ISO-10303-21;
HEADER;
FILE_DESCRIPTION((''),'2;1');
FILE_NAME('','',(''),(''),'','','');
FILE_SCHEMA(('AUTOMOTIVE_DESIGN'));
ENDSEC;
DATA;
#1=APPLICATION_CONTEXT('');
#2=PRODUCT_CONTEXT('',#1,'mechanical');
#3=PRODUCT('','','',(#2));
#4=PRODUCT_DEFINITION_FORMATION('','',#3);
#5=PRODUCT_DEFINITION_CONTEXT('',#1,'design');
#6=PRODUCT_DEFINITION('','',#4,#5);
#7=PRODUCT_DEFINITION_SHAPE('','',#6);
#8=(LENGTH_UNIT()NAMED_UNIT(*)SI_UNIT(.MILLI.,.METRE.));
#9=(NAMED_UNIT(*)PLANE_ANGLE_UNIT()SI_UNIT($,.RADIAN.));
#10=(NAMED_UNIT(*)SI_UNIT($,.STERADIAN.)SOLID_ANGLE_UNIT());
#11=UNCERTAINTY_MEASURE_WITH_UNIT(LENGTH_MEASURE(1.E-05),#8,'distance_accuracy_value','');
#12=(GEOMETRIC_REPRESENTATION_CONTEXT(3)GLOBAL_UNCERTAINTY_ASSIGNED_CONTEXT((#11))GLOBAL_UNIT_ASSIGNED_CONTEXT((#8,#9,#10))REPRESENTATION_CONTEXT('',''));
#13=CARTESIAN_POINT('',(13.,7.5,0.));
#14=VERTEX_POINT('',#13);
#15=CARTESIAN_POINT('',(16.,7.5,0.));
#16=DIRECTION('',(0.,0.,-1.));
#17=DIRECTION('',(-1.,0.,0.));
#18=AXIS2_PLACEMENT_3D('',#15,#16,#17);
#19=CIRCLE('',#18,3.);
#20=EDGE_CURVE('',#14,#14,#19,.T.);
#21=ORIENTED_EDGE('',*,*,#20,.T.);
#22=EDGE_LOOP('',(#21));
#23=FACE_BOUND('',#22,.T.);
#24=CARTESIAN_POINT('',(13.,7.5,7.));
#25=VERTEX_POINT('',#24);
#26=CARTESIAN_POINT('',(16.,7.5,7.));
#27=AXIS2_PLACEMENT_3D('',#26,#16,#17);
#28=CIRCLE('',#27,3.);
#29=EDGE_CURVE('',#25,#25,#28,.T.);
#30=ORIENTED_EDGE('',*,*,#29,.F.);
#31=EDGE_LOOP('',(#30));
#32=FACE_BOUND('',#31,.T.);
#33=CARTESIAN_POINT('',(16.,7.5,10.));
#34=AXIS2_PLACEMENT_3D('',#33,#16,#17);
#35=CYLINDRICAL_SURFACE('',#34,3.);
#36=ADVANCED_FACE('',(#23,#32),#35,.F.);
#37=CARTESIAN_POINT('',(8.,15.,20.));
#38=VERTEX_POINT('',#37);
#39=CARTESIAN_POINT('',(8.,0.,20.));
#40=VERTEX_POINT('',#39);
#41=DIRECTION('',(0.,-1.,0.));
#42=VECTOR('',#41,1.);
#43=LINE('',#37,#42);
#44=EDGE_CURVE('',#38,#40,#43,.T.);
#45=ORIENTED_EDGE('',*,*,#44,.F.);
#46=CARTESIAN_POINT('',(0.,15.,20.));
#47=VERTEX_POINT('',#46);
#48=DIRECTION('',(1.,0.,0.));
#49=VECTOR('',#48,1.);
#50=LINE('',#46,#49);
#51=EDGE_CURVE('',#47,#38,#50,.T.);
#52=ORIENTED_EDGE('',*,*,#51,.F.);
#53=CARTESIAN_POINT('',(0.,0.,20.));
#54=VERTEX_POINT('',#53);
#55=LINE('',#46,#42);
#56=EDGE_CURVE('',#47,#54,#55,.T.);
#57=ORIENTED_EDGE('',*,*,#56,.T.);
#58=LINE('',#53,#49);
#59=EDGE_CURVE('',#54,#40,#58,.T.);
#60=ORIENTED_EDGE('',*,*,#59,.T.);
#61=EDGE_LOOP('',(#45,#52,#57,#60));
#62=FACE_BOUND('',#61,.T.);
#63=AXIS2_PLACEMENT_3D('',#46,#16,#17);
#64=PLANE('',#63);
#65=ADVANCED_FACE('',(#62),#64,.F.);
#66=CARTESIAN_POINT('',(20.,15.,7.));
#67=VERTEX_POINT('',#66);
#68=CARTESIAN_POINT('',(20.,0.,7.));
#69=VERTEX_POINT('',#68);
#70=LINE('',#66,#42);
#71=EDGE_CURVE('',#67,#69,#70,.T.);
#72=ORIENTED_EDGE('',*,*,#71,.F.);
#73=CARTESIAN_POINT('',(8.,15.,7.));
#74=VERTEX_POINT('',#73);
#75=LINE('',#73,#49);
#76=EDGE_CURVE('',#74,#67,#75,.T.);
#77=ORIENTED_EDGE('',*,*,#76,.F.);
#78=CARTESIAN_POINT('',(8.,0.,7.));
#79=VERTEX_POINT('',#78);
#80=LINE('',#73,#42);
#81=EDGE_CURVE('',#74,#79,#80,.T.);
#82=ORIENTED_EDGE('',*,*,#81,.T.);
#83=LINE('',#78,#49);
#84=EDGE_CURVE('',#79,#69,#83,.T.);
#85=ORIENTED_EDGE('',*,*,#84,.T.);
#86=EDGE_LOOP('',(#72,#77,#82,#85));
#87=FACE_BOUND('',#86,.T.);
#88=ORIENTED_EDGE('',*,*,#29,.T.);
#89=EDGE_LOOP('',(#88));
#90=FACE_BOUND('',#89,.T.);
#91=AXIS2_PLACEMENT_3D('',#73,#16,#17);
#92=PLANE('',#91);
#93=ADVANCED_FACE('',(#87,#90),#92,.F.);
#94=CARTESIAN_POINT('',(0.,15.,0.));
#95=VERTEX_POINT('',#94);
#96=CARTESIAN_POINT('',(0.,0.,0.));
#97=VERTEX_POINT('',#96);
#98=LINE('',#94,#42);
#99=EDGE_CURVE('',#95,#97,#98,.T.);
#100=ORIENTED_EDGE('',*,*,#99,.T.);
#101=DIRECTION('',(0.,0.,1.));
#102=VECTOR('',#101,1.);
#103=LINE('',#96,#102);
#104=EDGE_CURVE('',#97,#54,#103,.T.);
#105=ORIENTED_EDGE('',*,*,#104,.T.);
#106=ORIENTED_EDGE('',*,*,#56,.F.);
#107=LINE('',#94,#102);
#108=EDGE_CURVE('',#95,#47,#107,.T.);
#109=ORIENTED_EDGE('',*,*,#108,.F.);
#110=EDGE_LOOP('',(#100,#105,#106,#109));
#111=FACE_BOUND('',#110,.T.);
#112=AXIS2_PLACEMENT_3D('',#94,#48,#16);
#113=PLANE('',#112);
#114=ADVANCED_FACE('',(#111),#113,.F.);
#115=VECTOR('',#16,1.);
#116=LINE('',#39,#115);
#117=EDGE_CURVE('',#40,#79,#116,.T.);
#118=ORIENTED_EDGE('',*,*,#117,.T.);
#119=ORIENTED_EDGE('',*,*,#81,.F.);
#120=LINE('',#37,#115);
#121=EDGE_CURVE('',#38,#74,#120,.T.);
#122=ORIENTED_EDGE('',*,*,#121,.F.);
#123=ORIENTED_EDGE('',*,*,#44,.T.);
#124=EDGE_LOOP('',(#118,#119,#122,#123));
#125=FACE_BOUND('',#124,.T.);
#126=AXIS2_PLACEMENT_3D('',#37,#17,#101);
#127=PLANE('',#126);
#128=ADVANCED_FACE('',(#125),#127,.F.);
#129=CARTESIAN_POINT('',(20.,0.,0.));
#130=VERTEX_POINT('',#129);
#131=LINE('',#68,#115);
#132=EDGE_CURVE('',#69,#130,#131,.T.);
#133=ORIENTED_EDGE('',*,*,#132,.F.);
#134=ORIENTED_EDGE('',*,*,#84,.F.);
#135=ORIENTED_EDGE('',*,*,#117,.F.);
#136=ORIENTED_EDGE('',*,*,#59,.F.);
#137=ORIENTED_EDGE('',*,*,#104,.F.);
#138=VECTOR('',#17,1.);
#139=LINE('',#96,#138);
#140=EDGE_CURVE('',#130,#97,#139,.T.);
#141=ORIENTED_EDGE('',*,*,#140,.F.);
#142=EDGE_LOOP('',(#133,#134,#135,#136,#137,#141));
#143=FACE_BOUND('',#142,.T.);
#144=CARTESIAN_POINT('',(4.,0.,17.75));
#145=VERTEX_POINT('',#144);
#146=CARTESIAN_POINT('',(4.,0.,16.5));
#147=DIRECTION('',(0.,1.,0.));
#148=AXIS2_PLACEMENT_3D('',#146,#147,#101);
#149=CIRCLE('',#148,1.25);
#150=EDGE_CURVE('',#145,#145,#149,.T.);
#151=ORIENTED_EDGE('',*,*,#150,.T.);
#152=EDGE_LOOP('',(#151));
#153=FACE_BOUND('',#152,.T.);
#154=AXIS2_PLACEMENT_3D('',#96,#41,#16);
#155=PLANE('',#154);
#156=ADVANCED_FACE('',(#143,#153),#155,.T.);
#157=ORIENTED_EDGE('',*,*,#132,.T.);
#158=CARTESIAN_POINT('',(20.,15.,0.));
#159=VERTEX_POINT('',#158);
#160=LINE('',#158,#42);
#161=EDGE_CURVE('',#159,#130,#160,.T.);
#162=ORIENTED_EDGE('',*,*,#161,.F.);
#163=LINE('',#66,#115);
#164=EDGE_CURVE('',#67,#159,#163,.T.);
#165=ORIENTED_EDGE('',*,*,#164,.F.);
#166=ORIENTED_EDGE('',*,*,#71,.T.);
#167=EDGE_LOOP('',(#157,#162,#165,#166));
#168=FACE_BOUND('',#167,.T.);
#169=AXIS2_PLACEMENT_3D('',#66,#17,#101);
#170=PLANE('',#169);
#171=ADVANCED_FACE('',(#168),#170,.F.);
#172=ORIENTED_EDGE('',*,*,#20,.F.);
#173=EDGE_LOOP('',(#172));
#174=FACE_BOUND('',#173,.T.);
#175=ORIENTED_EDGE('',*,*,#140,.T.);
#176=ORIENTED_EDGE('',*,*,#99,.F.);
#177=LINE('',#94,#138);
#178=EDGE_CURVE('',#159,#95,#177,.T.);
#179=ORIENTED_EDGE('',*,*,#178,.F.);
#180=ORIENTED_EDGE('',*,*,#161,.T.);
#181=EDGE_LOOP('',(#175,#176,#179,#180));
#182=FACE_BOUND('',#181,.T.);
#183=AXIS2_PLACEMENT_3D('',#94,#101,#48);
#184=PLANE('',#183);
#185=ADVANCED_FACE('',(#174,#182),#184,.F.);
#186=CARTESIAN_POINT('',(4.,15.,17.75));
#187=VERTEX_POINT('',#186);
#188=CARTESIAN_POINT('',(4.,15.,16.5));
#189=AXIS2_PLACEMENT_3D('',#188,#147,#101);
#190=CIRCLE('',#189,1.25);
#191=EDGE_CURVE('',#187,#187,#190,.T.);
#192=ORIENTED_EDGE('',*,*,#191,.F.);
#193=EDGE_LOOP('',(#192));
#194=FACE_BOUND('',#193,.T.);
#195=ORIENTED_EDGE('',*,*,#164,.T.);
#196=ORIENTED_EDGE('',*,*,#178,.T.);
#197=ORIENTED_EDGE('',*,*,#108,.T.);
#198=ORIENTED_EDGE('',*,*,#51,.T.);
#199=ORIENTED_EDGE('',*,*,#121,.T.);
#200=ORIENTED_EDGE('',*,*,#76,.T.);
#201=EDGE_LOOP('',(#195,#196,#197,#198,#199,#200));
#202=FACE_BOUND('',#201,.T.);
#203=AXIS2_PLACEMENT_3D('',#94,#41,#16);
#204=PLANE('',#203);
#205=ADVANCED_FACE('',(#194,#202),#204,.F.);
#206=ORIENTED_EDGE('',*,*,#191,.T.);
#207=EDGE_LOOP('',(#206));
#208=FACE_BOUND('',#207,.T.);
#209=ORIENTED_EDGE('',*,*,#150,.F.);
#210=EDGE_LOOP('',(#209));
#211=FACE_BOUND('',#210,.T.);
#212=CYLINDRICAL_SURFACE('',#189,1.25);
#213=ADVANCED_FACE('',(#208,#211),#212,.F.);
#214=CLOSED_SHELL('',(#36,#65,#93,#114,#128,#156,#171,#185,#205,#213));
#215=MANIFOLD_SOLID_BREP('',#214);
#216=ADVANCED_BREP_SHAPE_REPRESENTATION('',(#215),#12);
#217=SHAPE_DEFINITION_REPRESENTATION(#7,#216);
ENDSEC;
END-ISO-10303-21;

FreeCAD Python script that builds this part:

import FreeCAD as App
import Part
import Sketcher
from FreeCAD import Vector

doc = App.newDocument("Part")
body = doc.addObject("PartDesign::Body", "Body")

sketch1 = body.newObject("Sketcher::SketchObject", "Sketch")
sketch1.AttachmentSupport = (doc.getObject("XZ_Plane"), [""])
sketch1.MapMode = "FlatFace"
sketch1.addGeometry(Part.LineSegment(Vector(8, 7, 0), Vector(20, 7, 0)), False)
sketch1.addGeometry(Part.LineSegment(Vector(20, 7, 0), Vector(20, 0, 0)), False)
sketch1.addGeometry(Part.LineSegment(Vector(20, 0, 0), Vector(0, 0, 0)), False)
sketch1.addGeometry(Part.LineSegment(Vector(0, 0, 0), Vector(0, 20, 0)), False)
sketch1.addGeometry(Part.LineSegment(Vector(0, 20, 0), Vector(8, 20, 0)), False)
sketch1.addGeometry(Part.LineSegment(Vector(8, 20, 0), Vector(8, 7, 0)), False)
sketch1.addConstraint(Sketcher.Constraint("Coincident", 0, 2, 1, 1))
sketch1.addConstraint(Sketcher.Constraint("Coincident", 1, 2, 2, 1))
sketch1.addConstraint(Sketcher.Constraint("Coincident", 2, 2, 3, 1))
sketch1.addConstraint(Sketcher.Constraint("Coincident", 3, 2, 4, 1))
sketch1.addConstraint(Sketcher.Constraint("Coincident", 4, 2, 5, 1))
sketch1.addConstraint(Sketcher.Constraint("Coincident", 5, 2, 0, 1))
sketch1.addConstraint(Sketcher.Constraint("Horizontal", 0))
sketch1.addConstraint(Sketcher.Constraint("Vertical", 1))
sketch1.addConstraint(Sketcher.Constraint("Horizontal", 2))
sketch1.addConstraint(Sketcher.Constraint("Vertical", 3))
sketch1.addConstraint(Sketcher.Constraint("Horizontal", 4))
sketch1.addConstraint(Sketcher.Constraint("Vertical", 5))
sketch1.addConstraint(Sketcher.Constraint("Coincident", 2, 2, -1, 1))
sketch1.addConstraint(Sketcher.Constraint("Equal", 2, 3))
sketch1.addConstraint(Sketcher.Constraint("DistanceX", 0, 1, 0, 2, 12.0))
sketch1.addConstraint(Sketcher.Constraint("DistanceX", 2, 2, 2, 1, 20.0))
sketch1.addConstraint(Sketcher.Constraint("DistanceY", 1, 2, 1, 1, 7.0))
pad1 = body.newObject("PartDesign::Pad", "Pad")
pad1.Profile = sketch1
pad1.Length = 15
pad1.Reversed = True

sketch2 = body.newObject("Sketcher::SketchObject", "Sketch001")
sketch2.AttachmentSupport = (doc.getObject("XY_Plane"), [""])
sketch2.MapMode = "FlatFace"
sketch2.addGeometry(Part.Circle(Vector(16, 7.5, 0), Vector(0, 0, 1), 3), False)
sketch2.addConstraint(Sketcher.Constraint("Diameter", 0, 6.0))
sketch2.addConstraint(Sketcher.Constraint("DistanceX", -1, 1, 0, 3, 16.0))
sketch2.addConstraint(Sketcher.Constraint("DistanceY", -1, 1, 0, 3, 7.5))
pocket1 = body.newObject("PartDesign::Pocket", "Pocket")
pocket1.Profile = sketch2
pocket1.Length = 10
pocket1.Reversed = True

sketch3 = body.newObject("Sketcher::SketchObject", "Sketch002")
sketch3.AttachmentSupport = (doc.getObject("XZ_Plane"), [""])
sketch3.MapMode = "FlatFace"
sketch3.AttachmentOffset = App.Placement(Vector(0, 0, -15), App.Rotation())
sketch3.addGeometry(Part.Circle(Vector(4, 16.5, 0), Vector(0, 0, 1), 1.2), False)
sketch3.addConstraint(Sketcher.Constraint("Diameter", 0, 2.5))
sketch3.addConstraint(Sketcher.Constraint("DistanceX", -1, 1, 0, 3, 4.0))
sketch3.addConstraint(Sketcher.Constraint("DistanceY", -1, 1, 0, 3, 16.5))
doc.recompute()
hole = body.newObject("PartDesign::Hole", "Hole")
hole.Profile = sketch3
hole.ThreadType = "None"
hole.Diameter = 2.5
hole.DepthType = "ThroughAll"
hole.Reversed = True

doc.recompute()
